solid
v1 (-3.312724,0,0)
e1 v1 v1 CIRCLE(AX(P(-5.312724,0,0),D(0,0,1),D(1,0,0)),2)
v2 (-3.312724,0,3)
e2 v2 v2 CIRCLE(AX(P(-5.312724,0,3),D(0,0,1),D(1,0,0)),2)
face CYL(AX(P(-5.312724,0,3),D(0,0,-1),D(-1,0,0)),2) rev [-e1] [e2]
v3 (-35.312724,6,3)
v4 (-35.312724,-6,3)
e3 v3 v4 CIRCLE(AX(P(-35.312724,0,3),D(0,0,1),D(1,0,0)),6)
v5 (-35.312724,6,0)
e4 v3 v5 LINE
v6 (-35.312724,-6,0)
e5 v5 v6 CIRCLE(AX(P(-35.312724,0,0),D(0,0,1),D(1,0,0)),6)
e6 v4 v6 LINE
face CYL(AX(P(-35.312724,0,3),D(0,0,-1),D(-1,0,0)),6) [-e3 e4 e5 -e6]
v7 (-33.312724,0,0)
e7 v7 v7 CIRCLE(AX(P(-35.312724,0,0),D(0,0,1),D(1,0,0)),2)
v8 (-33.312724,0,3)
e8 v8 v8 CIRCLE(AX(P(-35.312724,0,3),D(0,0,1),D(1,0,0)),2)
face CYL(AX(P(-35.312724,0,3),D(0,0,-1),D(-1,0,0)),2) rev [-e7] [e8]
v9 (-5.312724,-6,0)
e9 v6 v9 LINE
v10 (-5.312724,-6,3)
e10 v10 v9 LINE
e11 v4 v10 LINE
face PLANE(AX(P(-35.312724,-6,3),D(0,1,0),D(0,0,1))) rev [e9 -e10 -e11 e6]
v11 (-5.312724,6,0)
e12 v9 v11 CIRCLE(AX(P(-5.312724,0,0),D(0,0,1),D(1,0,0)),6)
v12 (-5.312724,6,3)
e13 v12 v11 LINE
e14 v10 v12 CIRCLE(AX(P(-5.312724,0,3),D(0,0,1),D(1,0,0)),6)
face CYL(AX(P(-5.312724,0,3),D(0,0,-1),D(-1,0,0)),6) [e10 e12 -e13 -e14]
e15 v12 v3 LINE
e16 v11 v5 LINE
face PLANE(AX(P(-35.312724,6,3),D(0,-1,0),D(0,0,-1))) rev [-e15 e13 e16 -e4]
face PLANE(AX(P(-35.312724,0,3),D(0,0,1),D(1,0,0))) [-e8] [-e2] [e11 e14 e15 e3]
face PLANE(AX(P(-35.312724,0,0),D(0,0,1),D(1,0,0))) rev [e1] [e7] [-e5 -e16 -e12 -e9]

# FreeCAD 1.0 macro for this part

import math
import FreeCAD as App
import Part
import Sketcher

V = App.Vector
Q = App.Units.Quantity

doc = App.newDocument("Part")
body = doc.addObject("PartDesign::Body", "Body")

sketch1 = body.newObject("Sketcher::SketchObject", "Sketch")
sketch1.AttachmentSupport = (doc.getObject("XY_Plane"), [""])
sketch1.MapMode = "FlatFace"
sketch1.addGeometry([
    Part.LineSegment(V(-5.3, 6, 0), V(-35.3, 6, 0)),
    Part.ArcOfCircle(Part.Circle(V(-35.3, 0, 0), V(0, 0, 1), 6), math.radians(90), math.radians(270)),
    Part.LineSegment(V(-35.3, -6, 0), V(-5.3, -6, 0)),
    Part.ArcOfCircle(Part.Circle(V(-5.3, 0, 0), V(0, 0, 1), 6), math.radians(-90), math.radians(90)),
    Part.Circle(V(-5.3, 0, 0), V(0, 0, 1), 2),
    Part.Circle(V(-35.3, 0, 0), V(0, 0, 1), 2),
], False)
sketch1.addConstraint([
    Sketcher.Constraint("Tangent", 0, 2, 1, 1),
    Sketcher.Constraint("Tangent", 1, 2, 2, 1),
    Sketcher.Constraint("Tangent", 2, 2, 3, 1),
    Sketcher.Constraint("Tangent", 3, 2, 0, 1),
    Sketcher.Constraint("Horizontal", 0),
    Sketcher.Constraint("Horizontal", 2),
    Sketcher.Constraint("Coincident", 4, 3, 3, 3),
    Sketcher.Constraint("Coincident", 5, 3, 1, 3),
    Sketcher.Constraint("Equal", 4, 5),
    Sketcher.Constraint("PointOnObject", 1, 3, -1),
    Sketcher.Constraint("Diameter", 4, Q("4 mm")),
    Sketcher.Constraint("Radius", 1, Q("6 mm")),
    Sketcher.Constraint("DistanceX", 0, 2, 0, 1, Q("30 mm")),
    Sketcher.Constraint("DistanceX", 1, 3, -1, 1, Q("35.312724 mm")),
])
pad1 = body.newObject("PartDesign::Pad", "Pad")
pad1.Profile = sketch1
pad1.Length = 3

doc.recompute()
